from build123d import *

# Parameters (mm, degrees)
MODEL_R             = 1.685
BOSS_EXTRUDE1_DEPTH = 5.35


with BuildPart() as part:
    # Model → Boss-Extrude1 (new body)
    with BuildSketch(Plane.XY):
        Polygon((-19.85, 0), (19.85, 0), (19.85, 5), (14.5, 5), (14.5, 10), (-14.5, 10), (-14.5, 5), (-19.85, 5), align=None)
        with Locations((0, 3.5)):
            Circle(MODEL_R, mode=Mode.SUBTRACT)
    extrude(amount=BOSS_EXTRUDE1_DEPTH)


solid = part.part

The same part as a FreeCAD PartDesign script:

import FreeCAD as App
import Part
import Sketcher

V = App.Vector
Q = App.Units.Quantity


def add_polygon(sketch, points):
    """Adds a closed chain of lines whose ends are joined by coincident constraints."""
    first, n = sketch.GeometryCount, len(points)
    for a, b in zip(points, points[1:] + points[:1]):
        sketch.addGeometry(Part.LineSegment(App.Vector(*a, 0), App.Vector(*b, 0)), False)
    for i in range(n):
        sketch.addConstraint(Sketcher.Constraint("Coincident", first + i, 2, first + (i + 1) % n, 1))

doc = App.newDocument("Part")
params = doc.addObject("Spreadsheet::Sheet", "Params")
for row, (alias, value) in enumerate([
    ("sketch1_diameter", "3.37 mm"),
    ("sketch1_width", "29 mm"),
    ("sketch1_height", "5 mm"),
    ("sketch1_width2", "39.7 mm"),
    ("pad1_length", "5.35 mm"),
], start=1):
    params.set(f"A{row}", alias)
    params.set(f"B{row}", "=" + value)
    params.setAlias(f"B{row}", alias)

body = doc.addObject("PartDesign::Body", "Body")

# Sketch on XY plane
sketch1 = body.newObject("Sketcher::SketchObject", "Sketch")
sketch1.AttachmentSupport = (doc.getObject("XY_Plane"), [""])
sketch1.MapMode = "FlatFace"
add_polygon(sketch1, [(-19.85, 0), (19.85, 0), (19.85, 5), (14.5, 5), (14.5, 10), (-14.5, 10), (-14.5, 5), (-19.85, 5)])  # lines 0-7
sketch1.addGeometry(Part.Circle(V(0, 3.5, 0), V(0, 0, 1), 1.685), False)  # 8
sketch1.addConstraint(Sketcher.Constraint("Horizontal", 0))
sketch1.addConstraint(Sketcher.Constraint("Vertical", 1))
sketch1.addConstraint(Sketcher.Constraint("Horizontal", 2))
sketch1.addConstraint(Sketcher.Constraint("Vertical", 3))
sketch1.addConstraint(Sketcher.Constraint("Horizontal", 4))
sketch1.addConstraint(Sketcher.Constraint("Vertical", 5))
sketch1.addConstraint(Sketcher.Constraint("Horizontal", 6))
sketch1.addConstraint(Sketcher.Constraint("Vertical", 7))
sketch1.addConstraint(Sketcher.Constraint("Symmetric", 0, 2, 7, 2, -1, 1))
sketch1.addConstraint(Sketcher.Constraint("Symmetric", 2, 2, 5, 2, -2))
sketch1.addConstraint(Sketcher.Constraint("PointOnObject", 8, 3, -2))
sketch1.addConstraint(Sketcher.Constraint("Equal", 1, 3))
sketch1.addConstraint(Sketcher.Constraint("Diameter", 8, Q("3.37 mm")))
sketch1.addConstraint(Sketcher.Constraint("DistanceX", 4, 2, 4, 1, Q("29 mm")))
sketch1.addConstraint(Sketcher.Constraint("DistanceY", 1, 1, 1, 2, Q("5 mm")))
sketch1.addConstraint(Sketcher.Constraint("DistanceX", 0, 1, 0, 2, Q("39.7 mm")))
sketch1.addConstraint(Sketcher.Constraint("DistanceY", -1, 1, 8, 3, Q("3.5 mm")))
sketch1.setExpression("Constraints[20]", "Params.sketch1_diameter")
sketch1.setExpression("Constraints[21]", "Params.sketch1_width")
sketch1.setExpression("Constraints[22]", "Params.sketch1_height")
sketch1.setExpression("Constraints[23]", "Params.sketch1_width2")
pad1 = body.newObject("PartDesign::Pad", "Pad")
pad1.Profile = sketch1
pad1.setExpression("Length", "Params.pad1_length")

doc.recompute()
